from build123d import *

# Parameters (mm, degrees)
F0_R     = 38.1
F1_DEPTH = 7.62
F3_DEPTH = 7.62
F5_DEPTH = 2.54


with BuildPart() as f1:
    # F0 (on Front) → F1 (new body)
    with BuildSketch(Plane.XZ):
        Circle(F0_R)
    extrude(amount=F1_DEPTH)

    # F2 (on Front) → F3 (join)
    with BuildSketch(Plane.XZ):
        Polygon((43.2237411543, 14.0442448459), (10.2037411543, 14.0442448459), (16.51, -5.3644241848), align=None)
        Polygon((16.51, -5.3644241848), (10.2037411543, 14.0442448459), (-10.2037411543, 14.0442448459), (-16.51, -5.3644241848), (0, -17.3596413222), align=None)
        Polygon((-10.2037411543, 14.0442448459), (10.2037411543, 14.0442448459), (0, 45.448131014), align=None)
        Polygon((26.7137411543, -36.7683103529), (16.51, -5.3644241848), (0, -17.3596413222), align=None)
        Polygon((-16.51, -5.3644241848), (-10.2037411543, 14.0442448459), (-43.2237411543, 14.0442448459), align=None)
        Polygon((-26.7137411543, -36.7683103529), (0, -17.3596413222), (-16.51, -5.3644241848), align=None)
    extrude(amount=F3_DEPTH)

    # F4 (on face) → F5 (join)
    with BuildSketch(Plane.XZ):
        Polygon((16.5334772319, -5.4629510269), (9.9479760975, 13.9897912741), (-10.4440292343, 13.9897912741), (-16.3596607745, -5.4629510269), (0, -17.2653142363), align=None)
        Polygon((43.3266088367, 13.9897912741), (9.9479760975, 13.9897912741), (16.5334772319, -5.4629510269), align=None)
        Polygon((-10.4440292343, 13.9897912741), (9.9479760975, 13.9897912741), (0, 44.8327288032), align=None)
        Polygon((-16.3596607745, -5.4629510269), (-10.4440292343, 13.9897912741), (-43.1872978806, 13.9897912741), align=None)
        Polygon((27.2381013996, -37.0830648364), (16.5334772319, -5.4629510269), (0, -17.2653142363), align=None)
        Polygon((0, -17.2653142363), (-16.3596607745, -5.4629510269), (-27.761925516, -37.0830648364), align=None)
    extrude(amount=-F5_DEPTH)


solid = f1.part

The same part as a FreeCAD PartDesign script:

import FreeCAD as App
import Part
import Sketcher
Q = App.Units.Quantity


def add_polygon(sketch, points):
    """Adds a closed chain of lines whose ends are joined by coincident constraints."""
    first, n = sketch.GeometryCount, len(points)
    for a, b in zip(points, points[1:] + points[:1]):
        sketch.addGeometry(Part.LineSegment(App.Vector(*a, 0), App.Vector(*b, 0)), False)
    for i in range(n):
        sketch.addConstraint(Sketcher.Constraint("Coincident", first + i, 2, first + (i + 1) % n, 1))

doc = App.newDocument("Part")
params = doc.addObject("Spreadsheet::Sheet", "Params")
for row, (alias, value) in enumerate([
    ("sketch1_diameter", "3 in"),
    ("pad1_length", "0.3 in"),
    ("sketch2_width", "1.3 in"),
    ("pad2_length", "0.3 in"),
    ("pad3_length", "0.1 in"),
], start=1):
    params.set(f"A{row}", alias)
    params.set(f"B{row}", "=" + value)
    params.setAlias(f"B{row}", alias)

body = doc.addObject("PartDesign::Body", "Body")

# Sketch on XZ plane
sketch1 = doc.addObject("Sketcher::SketchObject", "Sketch")
body.addObject(sketch1)
sketch1.AttachmentSupport = (doc.XZ_Plane, [""])
sketch1.MapMode = "FlatFace"
sketch1.addGeometry(Part.Circle(App.Vector(0, 0, 0), App.Vector(0, 0, 1), 38), False)
sketch1.addConstraint(Sketcher.Constraint("Coincident", 0, 3, -1, 1))
sketch1.addConstraint(Sketcher.Constraint("Diameter", 0, Q("3 in")))
sketch1.setExpression("Constraints[1]", "Params.sketch1_diameter")
pad1 = doc.addObject("PartDesign::Pad", "Pad")
body.addObject(pad1)
pad1.Profile = sketch1
pad1.setExpression("Length", "Params.pad1_length")

# Sketch on XZ plane
sketch2 = doc.addObject("Sketcher::SketchObject", "Sketch001")
body.addObject(sketch2)
sketch2.AttachmentSupport = (doc.XZ_Plane, [""])
sketch2.MapMode = "FlatFace"
add_polygon(sketch2, [(43, 14), (10, 14), (0, 45), (-10, 14), (-43, 14), (-17, -5), (-27, -37), (0, -17), (27, -37), (17, -5)])  # lines 0-9
sketch2.addConstraint(Sketcher.Constraint("Horizontal", 0))
sketch2.addConstraint(Sketcher.Constraint("Horizontal", 3))
sketch2.addConstraint(Sketcher.Constraint("Symmetric", 0, 2, 2, 2, -2))
sketch2.addConstraint(Sketcher.Constraint("Symmetric", 5, 2, 7, 2, -2))
sketch2.addConstraint(Sketcher.Constraint("Symmetric", 4, 2, 8, 2, -2))
sketch2.addConstraint(Sketcher.Constraint("PointOnObject", 1, 2, -2))
sketch2.addConstraint(Sketcher.Constraint("PointOnObject", 6, 2, -2))
sketch2.addConstraint(Sketcher.Constraint("Parallel", 2, 5))
sketch2.addConstraint(Sketcher.Constraint("Parallel", 4, 7))
sketch2.addConstraint(Sketcher.Constraint("Parallel", 6, 9))
sketch2.addConstraint(Sketcher.Constraint("Equal", 2, 4))
sketch2.addConstraint(Sketcher.Constraint("Equal", 4, 5))
sketch2.addConstraint(Sketcher.Constraint("Equal", 5, 6))
sketch2.addConstraint(Sketcher.Constraint("DistanceX", 0, 2, 0, 1, Q("1.3 in")))
sketch2.addConstraint(Sketcher.Constraint("Angle", 1, Q("108 deg")))
sketch2.addConstraint(Sketcher.Constraint("Angle", 4, Q("-36 deg")))
sketch2.addConstraint(Sketcher.Constraint("DistanceY", -1, 1, 1, 2, 45.448131))
sketch2.setExpression("Constraints[23]", "Params.sketch2_width")
pad2 = doc.addObject("PartDesign::Pad", "Pad001")
body.addObject(pad2)
pad2.Profile = sketch2
pad2.setExpression("Length", "Params.pad2_length")

# Sketch on XZ plane
sketch3 = doc.addObject("Sketcher::SketchObject", "Sketch002")
body.addObject(sketch3)
sketch3.AttachmentSupport = (doc.XZ_Plane, [""])
sketch3.MapMode = "FlatFace"
add_polygon(sketch3, [(0, -17), (27, -37), (17, -5), (43, 14), (10, 14), (0, 45), (-10, 14), (-43, 14), (-16, -5), (-28, -37)])  # lines 0-9
sketch3.addConstraint(Sketcher.Constraint("Horizontal", 3))
sketch3.addConstraint(Sketcher.Constraint("Horizontal", 6))
sketch3.addConstraint(Sketcher.Constraint("PointOnObject", 4, 2, -2))
sketch3.addConstraint(Sketcher.Constraint("PointOnObject", 9, 2, -2))
sketch3.addConstraint(Sketcher.Constraint("Horizontal", 3, 2, 5, 2))
sketch3.addConstraint(Sketcher.Constraint("Horizontal", 1, 2, 7, 2))
sketch3.addConstraint(Sketcher.Constraint("Horizontal", 0, 2, 8, 2))
sketch3.addConstraint(Sketcher.Constraint("DistanceX", 6, 2, 6, 1, 32.743269))
sketch3.addConstraint(Sketcher.Constraint("DistanceX", -1, 1, 0, 2, 27.238101))
sketch3.addConstraint(Sketcher.Constraint("DistanceX", 3, 2, 1, 2, 6.585501))
sketch3.addConstraint(Sketcher.Constraint("Distance", 1, 33.382938))
sketch3.addConstraint(Sketcher.Constraint("Distance", 5, 32.563239))
sketch3.addConstraint(Sketcher.Constraint("Distance", 8, 33.613141))
sketch3.addConstraint(Sketcher.Constraint("DistanceX", 3, 2, 3, 1, 33.378633))
sketch3.addConstraint(Sketcher.Constraint("DistanceY", 1, 2, -1, 1, 5.462951))
sketch3.addConstraint(Sketcher.Constraint("DistanceX", -1, 1, 2, 2, 43.326609))
sketch3.addConstraint(Sketcher.Constraint("DistanceY", -1, 1, 2, 2, 13.989791))
sketch3.addConstraint(Sketcher.Constraint("DistanceY", -1, 1, 4, 2, 44.832729))
sketch3.addConstraint(Sketcher.Constraint("DistanceX", 7, 2, -1, 1, 16.359661))
sketch3.addConstraint(Sketcher.Constraint("DistanceY", 0, 2, 9, 2, 19.817751))
pad3 = doc.addObject("PartDesign::Pad", "Pad002")
body.addObject(pad3)
pad3.Profile = sketch3
pad3.setExpression("Length", "Params.pad3_length")
pad3.Reversed = True

doc.recompute()
